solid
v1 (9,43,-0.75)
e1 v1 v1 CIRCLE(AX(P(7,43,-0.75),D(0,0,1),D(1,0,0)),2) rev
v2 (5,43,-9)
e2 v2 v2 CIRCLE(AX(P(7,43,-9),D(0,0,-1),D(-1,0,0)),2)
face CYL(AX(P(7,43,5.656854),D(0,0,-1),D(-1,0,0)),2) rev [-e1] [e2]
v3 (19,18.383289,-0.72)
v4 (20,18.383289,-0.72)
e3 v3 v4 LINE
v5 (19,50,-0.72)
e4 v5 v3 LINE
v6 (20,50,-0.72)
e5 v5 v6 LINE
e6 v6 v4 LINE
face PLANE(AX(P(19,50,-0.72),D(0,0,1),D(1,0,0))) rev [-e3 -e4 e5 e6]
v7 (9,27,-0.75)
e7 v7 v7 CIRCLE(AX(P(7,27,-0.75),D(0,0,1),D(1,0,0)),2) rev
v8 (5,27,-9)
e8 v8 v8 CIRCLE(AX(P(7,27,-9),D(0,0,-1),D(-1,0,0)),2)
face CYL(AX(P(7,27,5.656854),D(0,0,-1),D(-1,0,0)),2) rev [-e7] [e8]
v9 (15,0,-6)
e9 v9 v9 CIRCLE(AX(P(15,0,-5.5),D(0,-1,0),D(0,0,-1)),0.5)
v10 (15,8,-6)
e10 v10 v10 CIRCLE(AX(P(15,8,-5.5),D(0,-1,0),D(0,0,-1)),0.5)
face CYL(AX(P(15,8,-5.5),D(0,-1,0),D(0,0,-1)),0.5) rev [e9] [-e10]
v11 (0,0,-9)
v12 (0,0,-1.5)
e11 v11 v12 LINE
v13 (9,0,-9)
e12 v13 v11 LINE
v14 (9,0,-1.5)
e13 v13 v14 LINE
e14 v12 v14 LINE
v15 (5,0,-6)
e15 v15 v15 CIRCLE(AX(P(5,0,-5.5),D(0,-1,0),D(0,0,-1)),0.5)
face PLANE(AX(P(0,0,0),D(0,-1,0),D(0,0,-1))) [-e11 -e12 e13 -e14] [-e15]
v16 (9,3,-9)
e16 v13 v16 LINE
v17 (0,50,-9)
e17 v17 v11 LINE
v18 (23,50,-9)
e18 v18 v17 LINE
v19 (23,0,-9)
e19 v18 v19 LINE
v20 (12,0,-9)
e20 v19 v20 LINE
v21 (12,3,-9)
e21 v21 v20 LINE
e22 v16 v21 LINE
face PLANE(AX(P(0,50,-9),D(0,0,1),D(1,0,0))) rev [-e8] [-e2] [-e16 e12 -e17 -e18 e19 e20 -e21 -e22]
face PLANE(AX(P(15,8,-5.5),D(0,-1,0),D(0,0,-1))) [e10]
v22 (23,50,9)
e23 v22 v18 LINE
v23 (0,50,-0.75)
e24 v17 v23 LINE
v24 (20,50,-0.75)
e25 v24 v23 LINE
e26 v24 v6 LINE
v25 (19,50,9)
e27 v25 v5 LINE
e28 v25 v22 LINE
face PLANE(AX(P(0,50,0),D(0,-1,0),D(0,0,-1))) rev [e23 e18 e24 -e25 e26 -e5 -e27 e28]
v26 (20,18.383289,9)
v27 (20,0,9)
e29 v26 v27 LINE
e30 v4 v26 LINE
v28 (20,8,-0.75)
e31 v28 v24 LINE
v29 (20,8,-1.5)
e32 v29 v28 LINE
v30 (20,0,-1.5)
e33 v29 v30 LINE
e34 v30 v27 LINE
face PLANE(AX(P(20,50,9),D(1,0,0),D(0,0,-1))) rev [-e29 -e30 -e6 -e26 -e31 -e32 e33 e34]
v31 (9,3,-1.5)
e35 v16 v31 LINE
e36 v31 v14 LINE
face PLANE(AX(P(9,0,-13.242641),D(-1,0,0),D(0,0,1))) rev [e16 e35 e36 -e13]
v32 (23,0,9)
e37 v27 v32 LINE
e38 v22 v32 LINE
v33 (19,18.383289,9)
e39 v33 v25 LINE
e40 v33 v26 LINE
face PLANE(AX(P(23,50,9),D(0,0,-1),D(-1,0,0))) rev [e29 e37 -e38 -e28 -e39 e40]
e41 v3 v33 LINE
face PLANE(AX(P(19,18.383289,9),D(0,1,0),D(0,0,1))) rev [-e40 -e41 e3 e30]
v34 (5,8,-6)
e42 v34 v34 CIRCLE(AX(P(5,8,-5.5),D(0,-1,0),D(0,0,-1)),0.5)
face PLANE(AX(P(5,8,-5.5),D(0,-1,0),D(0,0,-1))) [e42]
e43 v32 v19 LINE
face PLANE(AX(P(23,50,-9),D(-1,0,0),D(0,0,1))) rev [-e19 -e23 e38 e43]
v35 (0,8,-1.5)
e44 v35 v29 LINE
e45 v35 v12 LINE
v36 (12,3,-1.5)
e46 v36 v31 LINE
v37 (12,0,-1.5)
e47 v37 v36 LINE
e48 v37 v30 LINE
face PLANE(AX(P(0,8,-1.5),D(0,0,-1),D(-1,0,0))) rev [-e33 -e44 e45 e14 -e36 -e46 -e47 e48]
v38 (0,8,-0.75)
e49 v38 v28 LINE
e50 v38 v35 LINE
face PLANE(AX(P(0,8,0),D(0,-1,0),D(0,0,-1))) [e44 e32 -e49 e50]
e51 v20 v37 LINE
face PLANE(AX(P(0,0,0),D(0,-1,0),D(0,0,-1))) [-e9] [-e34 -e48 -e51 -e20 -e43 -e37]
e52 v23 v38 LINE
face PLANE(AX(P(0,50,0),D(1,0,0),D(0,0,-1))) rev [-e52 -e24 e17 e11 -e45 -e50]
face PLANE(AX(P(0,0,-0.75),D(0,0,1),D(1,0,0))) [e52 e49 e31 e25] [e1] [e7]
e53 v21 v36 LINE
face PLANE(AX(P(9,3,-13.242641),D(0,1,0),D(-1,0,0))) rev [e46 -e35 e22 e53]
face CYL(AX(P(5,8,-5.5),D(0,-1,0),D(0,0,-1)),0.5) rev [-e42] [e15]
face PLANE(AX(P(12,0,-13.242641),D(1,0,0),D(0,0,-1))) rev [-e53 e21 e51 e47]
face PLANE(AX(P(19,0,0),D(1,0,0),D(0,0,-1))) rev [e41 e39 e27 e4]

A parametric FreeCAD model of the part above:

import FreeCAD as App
import Part
import Sketcher
from FreeCAD import Vector


def add_polygon(sketch, points):
    """Adds a closed chain of lines whose ends are joined by coincident constraints."""
    first, n = sketch.GeometryCount, len(points)
    for a, b in zip(points, points[1:] + points[:1]):
        sketch.addGeometry(Part.LineSegment(App.Vector(*a, 0), App.Vector(*b, 0)), False)
    for i in range(n):
        sketch.addConstraint(Sketcher.Constraint("Coincident", first + i, 2, first + (i + 1) % n, 1))

doc = App.newDocument("Part")
body = doc.addObject("PartDesign::Body", "Body")

# Sketch on XZ plane
sketch1 = body.newObject("Sketcher::SketchObject", "Sketch")
sketch1.AttachmentSupport = (doc.getObject("XZ_Plane"), [""])
sketch1.MapMode = "FlatFace"
add_polygon(sketch1, [(0, -9), (0, 0), (20, 0), (20, 9), (23, 9), (23, -9)])  # lines 0-5
sketch1.addConstraint([
    Sketcher.Constraint("Vertical", 0),
    Sketcher.Constraint("Horizontal", 1),
    Sketcher.Constraint("Vertical", 2),
    Sketcher.Constraint("Horizontal", 3),
    Sketcher.Constraint("Vertical", 4),
    Sketcher.Constraint("Horizontal", 5),
    Sketcher.Constraint("Coincident", 0, 2, -1, 1),
    Sketcher.Constraint("Equal", 0, 2),
    Sketcher.Constraint("DistanceX", 1, 1, 1, 2, 20.0),
    Sketcher.Constraint("DistanceX", 3, 1, 3, 2, 3.0),
    Sketcher.Constraint("DistanceY", 0, 1, 0, 2, 9.0),
])
pad1 = body.newObject("PartDesign::Pad", "Pad")
pad1.Profile = sketch1
pad1.Length = 50
pad1.Reversed = True

# Sketch on XZ plane
sketch2 = body.newObject("Sketcher::SketchObject", "Sketch001")
sketch2.AttachmentSupport = (doc.getObject("XZ_Plane"), [""])
sketch2.MapMode = "FlatFace"
add_polygon(sketch2, [(0, 0), (0, -1.5), (20, -1.5), (20, 0)])  # lines 0-3
sketch2.addConstraint([
    Sketcher.Constraint("Vertical", 0),
    Sketcher.Constraint("Horizontal", 1),
    Sketcher.Constraint("Vertical", 2),
    Sketcher.Constraint("Horizontal", 3),
    Sketcher.Constraint("Coincident", 3, 2, -1, 1),
    Sketcher.Constraint("DistanceX", 1, 1, 1, 2, 20.0),
    Sketcher.Constraint("DistanceY", 0, 2, 0, 1, 1.5),
])
pocket1 = body.newObject("PartDesign::Pocket", "Pocket")
pocket1.Profile = sketch2
pocket1.Length = 8

# Sketch on XZ plane
sketch3 = body.newObject("Sketcher::SketchObject", "Sketch002")
sketch3.AttachmentSupport = (doc.getObject("XZ_Plane"), [""])
sketch3.MapMode = "FlatFace"
sketch3.addGeometry([
    Part.Circle(Vector(5, -5.5, 0), Vector(0, 0, 1), 0.5),
    Part.Circle(Vector(15, -5.5, 0), Vector(0, 0, 1), 0.5),
], False)
sketch3.addConstraint([
    Sketcher.Constraint("Equal", 0, 1),
    Sketcher.Constraint("Horizontal", 0, 3, 1, 3),
    Sketcher.Constraint("Diameter", 0, 1.0),
    Sketcher.Constraint("DistanceX", -1, 1, 0, 3, 5.0),
    Sketcher.Constraint("DistanceX", -1, 1, 1, 3, 15.0),
    Sketcher.Constraint("DistanceY", 0, 3, -1, 1, 5.5),
])
pocket2 = body.newObject("PartDesign::Pocket", "Pocket001")
pocket2.Profile = sketch3
pocket2.Length = 8

# Sketch on XY plane
sketch4 = body.newObject("Sketcher::SketchObject", "Sketch003")
sketch4.AttachmentSupport = (doc.getObject("XY_Plane"), [""])
sketch4.MapMode = "FlatFace"
sketch4.AttachmentOffset = App.Placement(Vector(0, 0, -1.5), App.Rotation())
add_polygon(sketch4, [(9, 3), (9, 0), (12, 0), (12, 3)])  # lines 0-3
sketch4.addConstraint([
    Sketcher.Constraint("Vertical", 0),
    Sketcher.Constraint("Horizontal", 1),
    Sketcher.Constraint("Vertical", 2),
    Sketcher.Constraint("Horizontal", 3),
    Sketcher.Constraint("PointOnObject", 0, 2, -1),
    Sketcher.Constraint("Equal", 3, 0),
    Sketcher.Constraint("DistanceX", 1, 1, 1, 2, 3.0),
    Sketcher.Constraint("DistanceX", -1, 1, 0, 2, 9.0),
])
pocket3 = body.newObject("PartDesign::Pocket", "Pocket002")
pocket3.Profile = sketch4
pocket3.Length = 7.5

# Sketch on XY plane
sketch5 = body.newObject("Sketcher::SketchObject", "Sketch004")
sketch5.AttachmentSupport = (doc.getObject("XY_Plane"), [""])
sketch5.MapMode = "FlatFace"
sketch5.AttachmentOffset = App.Placement(Vector(0, 0, -9), App.Rotation())
sketch5.addGeometry([
    Part.Circle(Vector(7, 27, 0), Vector(0, 0, 1), 2),
    Part.Circle(Vector(7, 43, 0), Vector(0, 0, 1), 2),
], False)
sketch5.addConstraint([
    Sketcher.Constraint("Equal", 0, 1),
    Sketcher.Constraint("Vertical", 0, 3, 1, 3),
    Sketcher.Constraint("Diameter", 0, 4.0),
    Sketcher.Constraint("DistanceX", -1, 1, 0, 3, 7.0),
    Sketcher.Constraint("DistanceY", -1, 1, 0, 3, 27.0),
    Sketcher.Constraint("DistanceY", -1, 1, 1, 3, 43.0),
])
pocket4 = body.newObject("PartDesign::Pocket", "Pocket003")
pocket4.Profile = sketch5
pocket4.Length = 9
pocket4.Reversed = True

# Sketch on XY plane
sketch6 = body.newObject("Sketcher::SketchObject", "Sketch005")
sketch6.AttachmentSupport = (doc.getObject("XY_Plane"), [""])
sketch6.MapMode = "FlatFace"
add_polygon(sketch6, [(0, 50), (0, 8), (20, 8), (20, 50)])  # lines 0-3
sketch6.addConstraint([
    Sketcher.Constraint("Vertical", 0),
    Sketcher.Constraint("Horizontal", 1),
    Sketcher.Constraint("Vertical", 2),
    Sketcher.Constraint("Horizontal", 3),
    Sketcher.Constraint("PointOnObject", 0, 2, -2),
    Sketcher.Constraint("DistanceX", 1, 1, 1, 2, 20.0),
    Sketcher.Constraint("DistanceY", 0, 2, 0, 1, 42.0),
    Sketcher.Constraint("DistanceY", -1, 1, 0, 2, 8.0),
])
pocket5 = body.newObject("PartDesign::Pocket", "Pocket004")
pocket5.Profile = sketch6
pocket5.Length = 0.75

# Sketch on YZ plane
sketch7 = body.newObject("Sketcher::SketchObject", "Sketch006")
sketch7.AttachmentSupport = (doc.getObject("YZ_Plane"), [""])
sketch7.MapMode = "FlatFace"
sketch7.AttachmentOffset = App.Placement(Vector(0, 0, 20), App.Rotation())
add_polygon(sketch7, [(50, -1), (18, -1), (18, 9), (50, 9)])  # lines 0-3
sketch7.addConstraint([
    Sketcher.Constraint("Horizontal", 0),
    Sketcher.Constraint("Vertical", 1),
    Sketcher.Constraint("Horizontal", 2),
    Sketcher.Constraint("Vertical", 3),
    Sketcher.Constraint("DistanceY", -1, 1, 1, 2, 9.0),
    Sketcher.Constraint("DistanceX", -1, 1, 2, 2, 50.0),
    Sketcher.Constraint("DistanceY", 1, 1, 1, 2, 9.72),
    Sketcher.Constraint("DistanceX", 0, 2, 0, 1, 31.616711),
])
pad2 = body.newObject("PartDesign::Pad", "Pad001")
pad2.Profile = sketch7
pad2.Length = 1
pad2.Reversed = True

doc.recompute()
